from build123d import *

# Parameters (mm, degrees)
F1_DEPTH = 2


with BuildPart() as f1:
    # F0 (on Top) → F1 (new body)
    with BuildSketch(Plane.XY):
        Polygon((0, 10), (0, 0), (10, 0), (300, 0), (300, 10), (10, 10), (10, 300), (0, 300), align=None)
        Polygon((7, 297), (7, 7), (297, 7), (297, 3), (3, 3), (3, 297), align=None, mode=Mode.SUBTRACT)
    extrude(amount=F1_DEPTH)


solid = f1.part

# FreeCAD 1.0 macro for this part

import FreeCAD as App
import Part
import Sketcher
from FreeCAD import Vector

doc = App.newDocument("Part")
body = doc.addObject("PartDesign::Body", "Body")

sketch1 = doc.addObject("Sketcher::SketchObject", "Sketch")
body.addObject(sketch1)
sketch1.AttachmentSupport = (doc.XY_Plane, [""])
sketch1.MapMode = "FlatFace"
sketch1.addGeometry([
    Part.LineSegment(Vector(0, 0, 0), Vector(300, 0, 0)),
    Part.LineSegment(Vector(300, 0, 0), Vector(300, 10, 0)),
    Part.LineSegment(Vector(300, 10, 0), Vector(10, 10, 0)),
    Part.LineSegment(Vector(10, 10, 0), Vector(10, 300, 0)),
    Part.LineSegment(Vector(10, 300, 0), Vector(0, 300, 0)),
    Part.LineSegment(Vector(0, 300, 0), Vector(0, 0, 0)),
    Part.LineSegment(Vector(3, 297, 0), Vector(7, 297, 0)),
    Part.LineSegment(Vector(7, 297, 0), Vector(7, 7, 0)),
    Part.LineSegment(Vector(7, 7, 0), Vector(297, 7, 0)),
    Part.LineSegment(Vector(297, 7, 0), Vector(297, 3, 0)),
    Part.LineSegment(Vector(297, 3, 0), Vector(3, 3, 0)),
    Part.LineSegment(Vector(3, 3, 0), Vector(3, 297, 0)),
], False)
sketch1.addConstraint([
    Sketcher.Constraint("Coincident", 0, 2, 1, 1),
    Sketcher.Constraint("Coincident", 1, 2, 2, 1),
    Sketcher.Constraint("Coincident", 2, 2, 3, 1),
    Sketcher.Constraint("Coincident", 3, 2, 4, 1),
    Sketcher.Constraint("Coincident", 4, 2, 5, 1),
    Sketcher.Constraint("Coincident", 5, 2, 0, 1),
    Sketcher.Constraint("Coincident", 6, 2, 7, 1),
    Sketcher.Constraint("Coincident", 7, 2, 8, 1),
    Sketcher.Constraint("Coincident", 8, 2, 9, 1),
    Sketcher.Constraint("Coincident", 9, 2, 10, 1),
    Sketcher.Constraint("Coincident", 10, 2, 11, 1),
    Sketcher.Constraint("Coincident", 11, 2, 6, 1),
    Sketcher.Constraint("Horizontal", 0),
    Sketcher.Constraint("Vertical", 1),
    Sketcher.Constraint("Horizontal", 2),
    Sketcher.Constraint("Vertical", 3),
    Sketcher.Constraint("Horizontal", 4),
    Sketcher.Constraint("Vertical", 5),
    Sketcher.Constraint("Horizontal", 6),
    Sketcher.Constraint("Vertical", 7),
    Sketcher.Constraint("Horizontal", 8),
    Sketcher.Constraint("Vertical", 9),
    Sketcher.Constraint("Horizontal", 10),
    Sketcher.Constraint("Vertical", 11),
    Sketcher.Constraint("Coincident", 5, 2, -1, 1),
    Sketcher.Constraint("Equal", 2, 8),
    Sketcher.Constraint("Equal", 4, 1),
    Sketcher.Constraint("Equal", 8, 3),
    Sketcher.Constraint("Equal", 3, 7),
    Sketcher.Constraint("Equal", 6, 9),
    Sketcher.Constraint("DistanceX", 0, 1, 0, 2, 300.0),
    Sketcher.Constraint("DistanceX", 2, 2, 2, 1, 290.0),
    Sketcher.Constraint("DistanceX", 6, 1, 6, 2, 4.0),
    Sketcher.Constraint("DistanceX", -1, 1, 6, 2, 7.0),
    Sketcher.Constraint("DistanceY", -1, 1, 6, 2, 297.0),
])
pad1 = doc.addObject("PartDesign::Pad", "Pad")
body.addObject(pad1)
pad1.Profile = sketch1
pad1.Length = 2

doc.recompute()
